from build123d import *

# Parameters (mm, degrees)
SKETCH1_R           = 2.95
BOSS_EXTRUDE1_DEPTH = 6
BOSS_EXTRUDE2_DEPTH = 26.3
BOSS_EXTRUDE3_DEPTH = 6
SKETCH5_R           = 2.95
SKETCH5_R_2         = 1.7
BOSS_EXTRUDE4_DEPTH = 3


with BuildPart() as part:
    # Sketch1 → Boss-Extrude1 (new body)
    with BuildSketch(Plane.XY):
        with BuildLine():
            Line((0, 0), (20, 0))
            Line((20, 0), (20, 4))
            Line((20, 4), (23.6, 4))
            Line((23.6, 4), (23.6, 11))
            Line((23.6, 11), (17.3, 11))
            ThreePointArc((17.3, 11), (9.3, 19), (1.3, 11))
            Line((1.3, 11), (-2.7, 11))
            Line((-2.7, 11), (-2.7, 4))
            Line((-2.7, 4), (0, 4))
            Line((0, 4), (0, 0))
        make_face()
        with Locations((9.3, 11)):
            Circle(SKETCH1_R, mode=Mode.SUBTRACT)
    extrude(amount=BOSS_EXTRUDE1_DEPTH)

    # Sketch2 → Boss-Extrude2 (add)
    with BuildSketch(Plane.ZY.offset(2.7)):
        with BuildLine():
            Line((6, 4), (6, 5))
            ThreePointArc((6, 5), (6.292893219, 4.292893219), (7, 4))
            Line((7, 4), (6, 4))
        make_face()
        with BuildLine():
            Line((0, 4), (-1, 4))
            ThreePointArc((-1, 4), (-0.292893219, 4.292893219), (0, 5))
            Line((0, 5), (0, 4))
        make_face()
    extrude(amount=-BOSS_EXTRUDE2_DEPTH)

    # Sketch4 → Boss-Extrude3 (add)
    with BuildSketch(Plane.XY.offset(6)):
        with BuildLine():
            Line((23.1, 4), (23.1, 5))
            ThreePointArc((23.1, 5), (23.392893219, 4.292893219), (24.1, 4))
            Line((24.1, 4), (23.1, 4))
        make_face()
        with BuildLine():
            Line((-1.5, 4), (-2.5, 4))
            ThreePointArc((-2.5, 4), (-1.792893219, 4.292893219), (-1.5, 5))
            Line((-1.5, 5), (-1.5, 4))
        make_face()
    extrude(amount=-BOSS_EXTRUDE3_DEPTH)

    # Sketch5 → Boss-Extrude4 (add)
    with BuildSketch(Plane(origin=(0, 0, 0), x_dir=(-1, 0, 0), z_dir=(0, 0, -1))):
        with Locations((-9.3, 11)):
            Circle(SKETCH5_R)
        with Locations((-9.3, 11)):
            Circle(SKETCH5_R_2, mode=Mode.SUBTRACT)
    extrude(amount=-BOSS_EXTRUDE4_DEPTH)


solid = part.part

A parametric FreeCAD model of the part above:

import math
import FreeCAD as App
import Part
import Sketcher

V = App.Vector

doc = App.newDocument("Part")
body = doc.addObject("PartDesign::Body", "Body")

# Sketch on XY plane
sketch1 = body.newObject("Sketcher::SketchObject", "Sketch")
sketch1.AttachmentSupport = (doc.getObject("XY_Plane"), [""])
sketch1.MapMode = "FlatFace"
sketch1.addGeometry(Part.LineSegment(V(0, 0, 0), V(20, 0, 0)), False)
sketch1.addGeometry(Part.LineSegment(V(20, 0, 0), V(20, 4, 0)), False)
sketch1.addGeometry(Part.LineSegment(V(20, 4, 0), V(23.6, 4, 0)), False)
sketch1.addGeometry(Part.LineSegment(V(23.6, 4, 0), V(23.6, 11, 0)), False)
sketch1.addGeometry(Part.LineSegment(V(23.6, 11, 0), V(17.3, 11, 0)), False)
sketch1.addGeometry(Part.ArcOfCircle(Part.Circle(V(9.3, 11, 0), V(0, 0, 1), 8), math.radians(0), math.radians(180)), False)
sketch1.addGeometry(Part.LineSegment(V(1.3, 11, 0), V(-2.7, 11, 0)), False)
sketch1.addGeometry(Part.LineSegment(V(-2.7, 11, 0), V(-2.7, 4, 0)), False)
sketch1.addGeometry(Part.LineSegment(V(-2.7, 4, 0), V(0, 4, 0)), False)
sketch1.addGeometry(Part.LineSegment(V(0, 4, 0), V(0, 0, 0)), False)
sketch1.addGeometry(Part.Circle(V(9.3, 11, 0), V(0, 0, 1), 2.95), False)
sketch1.addConstraint(Sketcher.Constraint("Coincident", 0, 2, 1, 1))
sketch1.addConstraint(Sketcher.Constraint("Coincident", 1, 2, 2, 1))
sketch1.addConstraint(Sketcher.Constraint("Coincident", 2, 2, 3, 1))
sketch1.addConstraint(Sketcher.Constraint("Coincident", 3, 2, 4, 1))
sketch1.addConstraint(Sketcher.Constraint("Coincident", 4, 2, 5, 1))
sketch1.addConstraint(Sketcher.Constraint("Coincident", 5, 2, 6, 1))
sketch1.addConstraint(Sketcher.Constraint("Coincident", 6, 2, 7, 1))
sketch1.addConstraint(Sketcher.Constraint("Coincident", 7, 2, 8, 1))
sketch1.addConstraint(Sketcher.Constraint("Coincident", 8, 2, 9, 1))
sketch1.addConstraint(Sketcher.Constraint("Coincident", 9, 2, 0, 1))
sketch1.addConstraint(Sketcher.Constraint("Horizontal", 0))
sketch1.addConstraint(Sketcher.Constraint("Vertical", 1))
sketch1.addConstraint(Sketcher.Constraint("Horizontal", 2))
sketch1.addConstraint(Sketcher.Constraint("Vertical", 3))
sketch1.addConstraint(Sketcher.Constraint("Horizontal", 4))
sketch1.addConstraint(Sketcher.Constraint("Horizontal", 6))
sketch1.addConstraint(Sketcher.Constraint("Vertical", 7))
sketch1.addConstraint(Sketcher.Constraint("Horizontal", 8))
sketch1.addConstraint(Sketcher.Constraint("Vertical", 9))
sketch1.addConstraint(Sketcher.Constraint("Coincident", 9, 2, -1, 1))
sketch1.addConstraint(Sketcher.Constraint("Coincident", 10, 3, 5, 3))
sketch1.addConstraint(Sketcher.Constraint("Horizontal", 10, 3, 3, 2))
sketch1.addConstraint(Sketcher.Constraint("Horizontal", 4, 2, 5, 2))
sketch1.addConstraint(Sketcher.Constraint("Horizontal", 2, 2, 7, 2))
sketch1.addConstraint(Sketcher.Constraint("Equal", 6, 1))
sketch1.addConstraint(Sketcher.Constraint("Radius", 5, 8.0))
sketch1.addConstraint(Sketcher.Constraint("Diameter", 10, 5.9))
sketch1.addConstraint(Sketcher.Constraint("DistanceX", 0, 1, 0, 2, 20.0))
sketch1.addConstraint(Sketcher.Constraint("DistanceX", 6, 2, 6, 1, 4.0))
sketch1.addConstraint(Sketcher.Constraint("DistanceY", 3, 1, 3, 2, 7.0))
sketch1.addConstraint(Sketcher.Constraint("DistanceX", 2, 1, 2, 2, 3.6))
sketch1.addConstraint(Sketcher.Constraint("DistanceX", 4, 2, 4, 1, 6.3))
pad1 = body.newObject("PartDesign::Pad", "Pad")
pad1.Profile = sketch1
pad1.Length = 6

# Sketch on YZ plane
sketch2 = body.newObject("Sketcher::SketchObject", "Sketch001")
sketch2.AttachmentSupport = (doc.getObject("YZ_Plane"), [""])
sketch2.MapMode = "FlatFace"
sketch2.AttachmentOffset = App.Placement(V(0, 0, -2.7), App.Rotation())
sketch2.addGeometry(Part.LineSegment(V(5, 6, 0), V(4, 6, 0)), False)
sketch2.addGeometry(Part.LineSegment(V(4, 6, 0), V(4, 7, 0)), False)
sketch2.addGeometry(Part.ArcOfCircle(Part.Circle(V(5, 7, 0), V(0, 0, 1), 1), math.radians(-180), math.radians(-90)), False)
sketch2.addGeometry(Part.LineSegment(V(4, -1, 0), V(4, 0, 0)), False)
sketch2.addGeometry(Part.LineSegment(V(4, 0, 0), V(5, 0, 0)), False)
sketch2.addGeometry(Part.ArcOfCircle(Part.Circle(V(5, -1, 0), V(0, 0, 1), 1), math.radians(90), math.radians(180)), False)
sketch2.addConstraint(Sketcher.Constraint("Coincident", 0, 2, 1, 1))
sketch2.addConstraint(Sketcher.Constraint("Tangent", 1, 2, 2, 1))
sketch2.addConstraint(Sketcher.Constraint("Tangent", 2, 2, 0, 1))
sketch2.addConstraint(Sketcher.Constraint("Coincident", 3, 2, 4, 1))
sketch2.addConstraint(Sketcher.Constraint("Tangent", 4, 2, 5, 1))
sketch2.addConstraint(Sketcher.Constraint("Tangent", 5, 2, 3, 1))
sketch2.addConstraint(Sketcher.Constraint("Horizontal", 0))
sketch2.addConstraint(Sketcher.Constraint("Vertical", 1))
sketch2.addConstraint(Sketcher.Constraint("Vertical", 3))
sketch2.addConstraint(Sketcher.Constraint("Horizontal", 4))
sketch2.addConstraint(Sketcher.Constraint("Equal", 2, 5))
sketch2.addConstraint(Sketcher.Constraint("PointOnObject", 3, 2, -1))
sketch2.addConstraint(Sketcher.Constraint("Vertical", 2, 3, 5, 3))
sketch2.addConstraint(Sketcher.Constraint("Radius", 2, 1.0))
sketch2.addConstraint(Sketcher.Constraint("DistanceX", -1, 1, 2, 3, 5.0))
sketch2.addConstraint(Sketcher.Constraint("DistanceY", -1, 1, 2, 3, 7.0))
pad2 = body.newObject("PartDesign::Pad", "Pad001")
pad2.Profile = sketch2
pad2.Length = 26.3

# Sketch on XY plane
sketch3 = body.newObject("Sketcher::SketchObject", "Sketch002")
sketch3.AttachmentSupport = (doc.getObject("XY_Plane"), [""])
sketch3.MapMode = "FlatFace"
sketch3.AttachmentOffset = App.Placement(V(0, 0, 6), App.Rotation())
sketch3.addGeometry(Part.LineSegment(V(23.1, 5, 0), V(23.1, 4, 0)), False)
sketch3.addGeometry(Part.LineSegment(V(23.1, 4, 0), V(24.1, 4, 0)), False)
sketch3.addGeometry(Part.ArcOfCircle(Part.Circle(V(24.1, 5, 0), V(0, 0, 1), 1), math.radians(-180), math.radians(-90)), False)
sketch3.addGeometry(Part.LineSegment(V(-2.5, 4, 0), V(-1.5, 4, 0)), False)
sketch3.addGeometry(Part.LineSegment(V(-1.5, 4, 0), V(-1.5, 5, 0)), False)
sketch3.addGeometry(Part.ArcOfCircle(Part.Circle(V(-2.5, 5, 0), V(0, 0, 1), 1), math.radians(-90), math.radians(0)), False)
sketch3.addConstraint(Sketcher.Constraint("Coincident", 0, 2, 1, 1))
sketch3.addConstraint(Sketcher.Constraint("Tangent", 1, 2, 2, 2))
sketch3.addConstraint(Sketcher.Constraint("Tangent", 2, 1, 0, 1))
sketch3.addConstraint(Sketcher.Constraint("Coincident", 3, 2, 4, 1))
sketch3.addConstraint(Sketcher.Constraint("Tangent", 4, 2, 5, 2))
sketch3.addConstraint(Sketcher.Constraint("Tangent", 5, 1, 3, 1))
sketch3.addConstraint(Sketcher.Constraint("Vertical", 0))
sketch3.addConstraint(Sketcher.Constraint("Horizontal", 1))
sketch3.addConstraint(Sketcher.Constraint("Horizontal", 3))
sketch3.addConstraint(Sketcher.Constraint("Vertical", 4))
sketch3.addConstraint(Sketcher.Constraint("Equal", 2, 5))
sketch3.addConstraint(Sketcher.Constraint("Horizontal", 2, 3, 5, 3))
sketch3.addConstraint(Sketcher.Constraint("Radius", 2, 1.0))
sketch3.addConstraint(Sketcher.Constraint("DistanceY", -1, 1, 2, 3, 5.0))
sketch3.addConstraint(Sketcher.Constraint("DistanceX", -1, 1, 2, 3, 24.1))
sketch3.addConstraint(Sketcher.Constraint("DistanceX", 5, 3, -1, 1, 2.5))
pad3 = body.newObject("PartDesign::Pad", "Pad002")
pad3.Profile = sketch3
pad3.Length = 6
pad3.Reversed = True

# Sketch on XY plane
sketch4 = body.newObject("Sketcher::SketchObject", "Sketch003")
sketch4.AttachmentSupport = (doc.getObject("XY_Plane"), [""])
sketch4.MapMode = "FlatFace"
sketch4.addGeometry(Part.Circle(V(9.3, 11, 0), V(0, 0, 1), 2.95), False)
sketch4.addGeometry(Part.Circle(V(9.3, 11, 0), V(0, 0, 1), 1.7), False)
sketch4.addConstraint(Sketcher.Constraint("Coincident", 1, 3, 0, 3))
sketch4.addConstraint(Sketcher.Constraint("Diameter", 0, 5.9))
sketch4.addConstraint(Sketcher.Constraint("Diameter", 1, 3.4))
sketch4.addConstraint(Sketcher.Constraint("DistanceY", -1, 1, 0, 3, 11.0))
sketch4.addConstraint(Sketcher.Constraint("DistanceX", -1, 1, 0, 3, 9.3))
pad4 = body.newObject("PartDesign::Pad", "Pad003")
pad4.Profile = sketch4
pad4.Length = 3

doc.recompute()
